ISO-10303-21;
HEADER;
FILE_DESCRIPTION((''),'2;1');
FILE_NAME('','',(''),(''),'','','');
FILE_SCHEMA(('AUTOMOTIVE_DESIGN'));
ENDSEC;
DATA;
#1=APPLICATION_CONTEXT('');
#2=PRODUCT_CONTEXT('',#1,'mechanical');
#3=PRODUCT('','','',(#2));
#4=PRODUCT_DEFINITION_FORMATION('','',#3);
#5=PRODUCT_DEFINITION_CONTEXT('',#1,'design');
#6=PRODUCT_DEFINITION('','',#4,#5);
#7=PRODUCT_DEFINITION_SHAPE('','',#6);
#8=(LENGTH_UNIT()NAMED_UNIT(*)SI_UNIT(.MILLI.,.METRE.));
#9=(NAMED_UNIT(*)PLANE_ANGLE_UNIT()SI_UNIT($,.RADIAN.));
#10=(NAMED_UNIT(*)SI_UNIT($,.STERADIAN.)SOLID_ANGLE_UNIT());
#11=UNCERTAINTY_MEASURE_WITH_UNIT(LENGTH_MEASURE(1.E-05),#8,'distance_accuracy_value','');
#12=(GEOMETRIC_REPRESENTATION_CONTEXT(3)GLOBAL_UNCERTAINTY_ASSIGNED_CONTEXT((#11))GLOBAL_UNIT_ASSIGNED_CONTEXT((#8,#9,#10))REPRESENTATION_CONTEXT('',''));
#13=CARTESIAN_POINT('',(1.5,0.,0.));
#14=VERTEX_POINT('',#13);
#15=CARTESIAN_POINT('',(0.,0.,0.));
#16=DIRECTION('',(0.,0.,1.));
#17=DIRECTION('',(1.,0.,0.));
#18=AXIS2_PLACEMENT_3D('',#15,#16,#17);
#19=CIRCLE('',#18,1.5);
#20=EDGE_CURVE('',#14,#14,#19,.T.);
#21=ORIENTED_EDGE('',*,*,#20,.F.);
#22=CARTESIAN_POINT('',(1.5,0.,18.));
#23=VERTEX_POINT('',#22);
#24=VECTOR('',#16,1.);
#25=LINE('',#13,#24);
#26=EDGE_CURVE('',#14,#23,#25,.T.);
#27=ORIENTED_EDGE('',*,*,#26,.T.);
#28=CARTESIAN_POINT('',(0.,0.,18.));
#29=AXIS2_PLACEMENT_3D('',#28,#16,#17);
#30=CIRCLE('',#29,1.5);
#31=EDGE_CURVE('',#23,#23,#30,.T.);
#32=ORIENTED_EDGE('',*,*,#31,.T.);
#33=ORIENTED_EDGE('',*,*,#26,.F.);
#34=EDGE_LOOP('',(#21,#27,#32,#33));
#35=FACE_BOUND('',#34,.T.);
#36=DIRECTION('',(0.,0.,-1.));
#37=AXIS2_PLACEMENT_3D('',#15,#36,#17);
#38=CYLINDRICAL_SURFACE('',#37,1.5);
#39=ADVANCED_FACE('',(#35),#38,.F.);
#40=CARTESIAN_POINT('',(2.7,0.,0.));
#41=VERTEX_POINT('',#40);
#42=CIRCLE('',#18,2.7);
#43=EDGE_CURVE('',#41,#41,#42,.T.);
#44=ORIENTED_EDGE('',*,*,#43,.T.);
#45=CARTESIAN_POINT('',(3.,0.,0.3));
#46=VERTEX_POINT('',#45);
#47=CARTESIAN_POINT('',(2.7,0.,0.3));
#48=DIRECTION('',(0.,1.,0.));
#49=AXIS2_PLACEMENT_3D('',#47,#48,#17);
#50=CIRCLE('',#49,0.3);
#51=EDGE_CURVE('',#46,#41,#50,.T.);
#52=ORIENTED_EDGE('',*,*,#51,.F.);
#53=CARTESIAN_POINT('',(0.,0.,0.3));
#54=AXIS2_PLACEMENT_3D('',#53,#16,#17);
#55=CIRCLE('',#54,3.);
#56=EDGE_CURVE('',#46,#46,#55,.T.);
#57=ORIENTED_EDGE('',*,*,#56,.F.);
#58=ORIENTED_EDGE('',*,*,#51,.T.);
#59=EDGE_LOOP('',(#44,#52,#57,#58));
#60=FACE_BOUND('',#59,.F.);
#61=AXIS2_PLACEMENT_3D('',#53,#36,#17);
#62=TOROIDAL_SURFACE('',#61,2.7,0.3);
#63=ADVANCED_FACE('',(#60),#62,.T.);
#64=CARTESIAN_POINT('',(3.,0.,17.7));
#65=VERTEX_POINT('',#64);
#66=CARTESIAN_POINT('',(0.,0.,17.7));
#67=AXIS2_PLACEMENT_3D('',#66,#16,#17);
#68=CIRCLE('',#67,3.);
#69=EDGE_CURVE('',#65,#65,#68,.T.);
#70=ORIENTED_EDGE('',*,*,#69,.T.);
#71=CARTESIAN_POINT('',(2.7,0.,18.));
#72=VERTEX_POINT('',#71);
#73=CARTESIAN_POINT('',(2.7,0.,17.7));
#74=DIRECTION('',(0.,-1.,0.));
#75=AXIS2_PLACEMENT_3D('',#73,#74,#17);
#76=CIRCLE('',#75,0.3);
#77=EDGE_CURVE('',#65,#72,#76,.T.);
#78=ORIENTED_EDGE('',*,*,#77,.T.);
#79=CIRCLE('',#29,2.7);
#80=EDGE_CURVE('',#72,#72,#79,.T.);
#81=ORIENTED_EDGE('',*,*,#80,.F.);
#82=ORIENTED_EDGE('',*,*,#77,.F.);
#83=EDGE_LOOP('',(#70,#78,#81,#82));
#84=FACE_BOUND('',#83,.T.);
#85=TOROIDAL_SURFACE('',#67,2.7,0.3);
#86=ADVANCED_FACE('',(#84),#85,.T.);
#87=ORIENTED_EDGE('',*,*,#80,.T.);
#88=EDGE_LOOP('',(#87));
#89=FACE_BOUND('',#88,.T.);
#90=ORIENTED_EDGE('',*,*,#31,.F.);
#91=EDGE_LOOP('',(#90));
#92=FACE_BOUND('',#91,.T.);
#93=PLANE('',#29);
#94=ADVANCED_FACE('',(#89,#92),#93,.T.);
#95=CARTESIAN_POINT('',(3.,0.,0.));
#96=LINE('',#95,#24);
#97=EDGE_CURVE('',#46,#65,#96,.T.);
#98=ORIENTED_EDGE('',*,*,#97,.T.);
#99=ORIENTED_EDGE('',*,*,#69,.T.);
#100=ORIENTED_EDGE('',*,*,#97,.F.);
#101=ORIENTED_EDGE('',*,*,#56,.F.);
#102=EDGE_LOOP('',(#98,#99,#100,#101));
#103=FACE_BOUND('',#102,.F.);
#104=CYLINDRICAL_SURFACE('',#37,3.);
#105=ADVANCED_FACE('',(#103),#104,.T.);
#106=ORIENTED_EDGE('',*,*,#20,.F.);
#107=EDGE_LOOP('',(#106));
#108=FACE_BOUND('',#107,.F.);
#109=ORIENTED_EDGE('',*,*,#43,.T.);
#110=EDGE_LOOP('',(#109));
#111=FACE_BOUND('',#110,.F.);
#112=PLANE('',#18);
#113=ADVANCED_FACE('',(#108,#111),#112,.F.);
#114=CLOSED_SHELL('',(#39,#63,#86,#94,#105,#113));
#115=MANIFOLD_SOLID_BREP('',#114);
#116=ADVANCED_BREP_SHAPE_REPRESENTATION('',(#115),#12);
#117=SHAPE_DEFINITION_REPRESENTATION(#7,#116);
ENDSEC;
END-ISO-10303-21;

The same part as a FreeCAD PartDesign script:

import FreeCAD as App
import Part
import Sketcher


def edges_at(feature, points):
    """Names of the edges that pass closest to the given points."""
    edges = feature.Shape.Edges
    near = lambda p: min(range(len(edges)), key=lambda i: edges[i].distToShape(Part.Vertex(*p))[0])
    return sorted({f"Edge{near(p) + 1}" for p in points})

doc = App.newDocument("Part")
params = doc.addObject("Spreadsheet::Sheet", "Params")
for row, (alias, value) in enumerate([
    ("sketch1_diameter", "6 mm"),
    ("sketch1_diameter2", "3 mm"),
    ("pad1_length", "18 mm"),
    ("fillet_radius", "0.3 mm"),
], start=1):
    params.set(f"A{row}", alias)
    params.set(f"B{row}", "=" + value)
    params.setAlias(f"B{row}", alias)

body = doc.addObject("PartDesign::Body", "Body")

# Sketch on XY plane
sketch1 = body.newObject("Sketcher::SketchObject", "Sketch")
sketch1.AttachmentSupport = (doc.getObject("XY_Plane"), [""])
sketch1.MapMode = "FlatFace"
sketch1.addGeometry(Part.Circle(App.Vector(0, 0, 0), App.Vector(0, 0, 1), 3), False)
sketch1.addGeometry(Part.Circle(App.Vector(0, 0, 0), App.Vector(0, 0, 1), 1.5), False)
sketch1.addConstraint(Sketcher.Constraint("Coincident", 0, 3, -1, 1))
sketch1.addConstraint(Sketcher.Constraint("Coincident", 1, 3, -1, 1))
sketch1.addConstraint(Sketcher.Constraint("Diameter", 0, 6.0))
sketch1.addConstraint(Sketcher.Constraint("Diameter", 1, 3.0))
sketch1.setExpression("Constraints[2]", "Params.sketch1_diameter")
sketch1.setExpression("Constraints[3]", "Params.sketch1_diameter2")
pad1 = body.newObject("PartDesign::Pad", "Pad")
pad1.Profile = sketch1
pad1.setExpression("Length", "Params.pad1_length")
doc.recompute()

fillet = body.newObject("PartDesign::Fillet", "Fillet")
fillet.Base = (pad1, edges_at(pad1, [(-3, 0, 18), (-3, 0, 0)]))
fillet.setExpression("Radius", "Params.fillet_radius")

doc.recompute()
